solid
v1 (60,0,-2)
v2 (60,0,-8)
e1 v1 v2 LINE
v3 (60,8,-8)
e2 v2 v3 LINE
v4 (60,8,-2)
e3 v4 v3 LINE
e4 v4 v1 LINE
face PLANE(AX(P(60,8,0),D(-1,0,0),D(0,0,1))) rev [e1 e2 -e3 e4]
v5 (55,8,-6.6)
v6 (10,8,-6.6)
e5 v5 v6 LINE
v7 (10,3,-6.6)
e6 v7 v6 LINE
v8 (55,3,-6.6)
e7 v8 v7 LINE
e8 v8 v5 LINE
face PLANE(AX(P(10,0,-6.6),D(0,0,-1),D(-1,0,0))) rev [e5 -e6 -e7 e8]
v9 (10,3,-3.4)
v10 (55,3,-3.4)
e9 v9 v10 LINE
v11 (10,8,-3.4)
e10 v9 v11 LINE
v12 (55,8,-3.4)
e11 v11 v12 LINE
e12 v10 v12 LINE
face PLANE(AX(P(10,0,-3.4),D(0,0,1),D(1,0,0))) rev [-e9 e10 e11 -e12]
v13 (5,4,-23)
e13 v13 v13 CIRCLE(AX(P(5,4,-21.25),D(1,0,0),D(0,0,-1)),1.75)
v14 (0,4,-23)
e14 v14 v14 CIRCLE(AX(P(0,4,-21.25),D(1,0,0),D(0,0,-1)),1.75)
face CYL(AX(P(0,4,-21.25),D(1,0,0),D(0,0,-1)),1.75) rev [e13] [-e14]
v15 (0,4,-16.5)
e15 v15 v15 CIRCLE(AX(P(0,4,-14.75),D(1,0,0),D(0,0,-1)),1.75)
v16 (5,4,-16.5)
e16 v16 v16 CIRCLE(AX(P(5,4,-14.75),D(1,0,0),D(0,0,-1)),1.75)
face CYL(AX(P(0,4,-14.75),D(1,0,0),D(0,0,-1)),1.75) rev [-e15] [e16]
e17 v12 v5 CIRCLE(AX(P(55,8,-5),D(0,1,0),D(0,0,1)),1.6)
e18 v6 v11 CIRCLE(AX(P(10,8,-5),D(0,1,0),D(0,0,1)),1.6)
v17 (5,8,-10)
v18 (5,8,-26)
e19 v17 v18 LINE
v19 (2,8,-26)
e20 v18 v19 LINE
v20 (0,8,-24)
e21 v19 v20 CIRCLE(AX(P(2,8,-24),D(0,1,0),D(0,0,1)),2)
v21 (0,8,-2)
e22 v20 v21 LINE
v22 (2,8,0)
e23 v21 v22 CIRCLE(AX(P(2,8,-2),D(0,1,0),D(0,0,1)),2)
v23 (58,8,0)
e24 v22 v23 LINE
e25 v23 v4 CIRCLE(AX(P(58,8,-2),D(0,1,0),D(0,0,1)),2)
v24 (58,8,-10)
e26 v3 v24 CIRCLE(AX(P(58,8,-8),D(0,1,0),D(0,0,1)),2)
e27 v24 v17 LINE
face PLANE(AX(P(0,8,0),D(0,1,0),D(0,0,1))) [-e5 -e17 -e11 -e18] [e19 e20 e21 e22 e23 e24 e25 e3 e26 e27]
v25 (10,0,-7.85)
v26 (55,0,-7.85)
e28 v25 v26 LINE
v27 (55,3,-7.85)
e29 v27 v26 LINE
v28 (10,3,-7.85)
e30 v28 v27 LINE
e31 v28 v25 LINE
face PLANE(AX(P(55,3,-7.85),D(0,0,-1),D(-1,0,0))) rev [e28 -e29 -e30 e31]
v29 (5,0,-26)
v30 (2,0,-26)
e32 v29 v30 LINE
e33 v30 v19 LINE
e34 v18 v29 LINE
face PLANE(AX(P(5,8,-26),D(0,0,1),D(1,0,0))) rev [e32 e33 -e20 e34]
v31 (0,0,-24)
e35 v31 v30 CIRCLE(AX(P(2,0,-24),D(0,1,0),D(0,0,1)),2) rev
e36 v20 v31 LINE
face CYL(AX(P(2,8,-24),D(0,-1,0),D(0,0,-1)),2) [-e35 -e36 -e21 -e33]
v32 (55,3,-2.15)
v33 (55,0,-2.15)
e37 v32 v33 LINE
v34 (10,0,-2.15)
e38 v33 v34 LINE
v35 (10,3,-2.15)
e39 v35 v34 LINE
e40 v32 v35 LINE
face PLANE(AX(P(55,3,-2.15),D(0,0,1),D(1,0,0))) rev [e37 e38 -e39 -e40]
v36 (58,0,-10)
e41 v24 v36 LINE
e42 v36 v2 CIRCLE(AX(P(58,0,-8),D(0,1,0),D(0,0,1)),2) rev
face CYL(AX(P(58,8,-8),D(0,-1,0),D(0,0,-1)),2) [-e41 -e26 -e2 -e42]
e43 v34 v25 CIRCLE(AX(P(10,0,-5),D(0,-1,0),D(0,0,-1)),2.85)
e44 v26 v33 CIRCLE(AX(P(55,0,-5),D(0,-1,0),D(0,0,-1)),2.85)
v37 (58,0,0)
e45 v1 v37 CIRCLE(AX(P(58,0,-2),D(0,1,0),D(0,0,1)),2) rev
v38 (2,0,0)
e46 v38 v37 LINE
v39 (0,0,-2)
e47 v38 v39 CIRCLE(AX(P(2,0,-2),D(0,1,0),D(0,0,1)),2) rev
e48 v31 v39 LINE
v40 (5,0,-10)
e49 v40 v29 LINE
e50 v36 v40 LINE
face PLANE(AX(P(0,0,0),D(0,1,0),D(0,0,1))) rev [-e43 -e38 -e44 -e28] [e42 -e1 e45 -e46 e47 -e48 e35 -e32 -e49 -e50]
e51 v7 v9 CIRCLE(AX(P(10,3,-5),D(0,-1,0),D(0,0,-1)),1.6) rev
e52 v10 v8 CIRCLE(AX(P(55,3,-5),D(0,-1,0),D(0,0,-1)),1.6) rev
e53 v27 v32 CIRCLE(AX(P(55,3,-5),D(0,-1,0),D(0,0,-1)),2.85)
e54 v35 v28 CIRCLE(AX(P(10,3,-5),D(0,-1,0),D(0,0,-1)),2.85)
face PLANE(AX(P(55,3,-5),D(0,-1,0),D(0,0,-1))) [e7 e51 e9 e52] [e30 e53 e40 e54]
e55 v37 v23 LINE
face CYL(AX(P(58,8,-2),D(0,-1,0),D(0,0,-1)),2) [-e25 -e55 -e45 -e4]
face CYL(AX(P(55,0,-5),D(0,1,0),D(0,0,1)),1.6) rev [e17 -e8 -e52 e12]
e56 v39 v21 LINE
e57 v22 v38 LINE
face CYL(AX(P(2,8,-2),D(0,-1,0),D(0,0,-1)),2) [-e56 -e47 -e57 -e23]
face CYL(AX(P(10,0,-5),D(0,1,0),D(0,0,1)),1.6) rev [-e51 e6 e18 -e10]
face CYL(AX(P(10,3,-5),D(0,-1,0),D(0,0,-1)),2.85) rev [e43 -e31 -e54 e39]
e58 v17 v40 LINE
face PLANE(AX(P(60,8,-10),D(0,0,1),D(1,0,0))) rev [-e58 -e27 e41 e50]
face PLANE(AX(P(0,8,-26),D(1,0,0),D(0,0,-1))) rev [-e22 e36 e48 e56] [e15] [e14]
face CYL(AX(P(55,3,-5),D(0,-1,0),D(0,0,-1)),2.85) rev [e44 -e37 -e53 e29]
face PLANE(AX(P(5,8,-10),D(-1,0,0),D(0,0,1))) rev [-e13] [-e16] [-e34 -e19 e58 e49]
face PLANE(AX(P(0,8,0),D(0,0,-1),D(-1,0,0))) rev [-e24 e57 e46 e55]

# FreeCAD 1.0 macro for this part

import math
import FreeCAD as App
import Part
import Sketcher


def edges_at(feature, points):
    """Names of the edges that pass closest to the given points."""
    edges = feature.Shape.Edges
    near = lambda p: min(range(len(edges)), key=lambda i: edges[i].distToShape(Part.Vertex(*p))[0])
    return sorted({f"Edge{near(p) + 1}" for p in points})

doc = App.newDocument("Part")
params = doc.addObject("Spreadsheet::Sheet", "Params")
for row, (alias, value) in enumerate([
    ("sketch1_width", "60 mm"),
    ("sketch1_width2", "55 mm"),
    ("sketch1_height", "26 mm"),
    ("sketch1_height2", "10 mm"),
    ("pad1_length", "8 mm"),
    ("sketch2_diameter", "3.5 mm"),
    ("sketch3_radius", "1.6 mm"),
    ("sketch3_width", "45 mm"),
    ("sketch4_width", "45 mm"),
    ("sketch4_radius", "2.85 mm"),
    ("pocket3_length", "3 mm"),
    ("fillet_radius", "2 mm"),
], start=1):
    params.set(f"A{row}", alias)
    params.set(f"B{row}", "=" + value)
    params.setAlias(f"B{row}", alias)

body = doc.addObject("PartDesign::Body", "Body")

# Sketch on XZ plane
sketch1 = body.newObject("Sketcher::SketchObject", "Sketch")
sketch1.AttachmentSupport = (doc.getObject("XZ_Plane"), [""])
sketch1.MapMode = "FlatFace"
sketch1.addGeometry([
    Part.LineSegment(App.Vector(0, -26, 0), App.Vector(0, 0, 0)),  # 0
    Part.LineSegment(App.Vector(0, 0, 0), App.Vector(60, 0, 0)),  # 1
    Part.LineSegment(App.Vector(60, 0, 0), App.Vector(60, -10, 0)),  # 2
    Part.LineSegment(App.Vector(60, -10, 0), App.Vector(5, -10, 0)),  # 3
    Part.LineSegment(App.Vector(5, -10, 0), App.Vector(5, -26, 0)),  # 4
    Part.LineSegment(App.Vector(5, -26, 0), App.Vector(0, -26, 0)),  # 5
], False)
sketch1.addConstraint([
    Sketcher.Constraint("Coincident", 0, 2, 1, 1),
    Sketcher.Constraint("Coincident", 1, 2, 2, 1),
    Sketcher.Constraint("Coincident", 2, 2, 3, 1),
    Sketcher.Constraint("Coincident", 3, 2, 4, 1),
    Sketcher.Constraint("Coincident", 4, 2, 5, 1),
    Sketcher.Constraint("Coincident", 5, 2, 0, 1),
    Sketcher.Constraint("Vertical", 0),
    Sketcher.Constraint("Horizontal", 1),
    Sketcher.Constraint("Vertical", 2),
    Sketcher.Constraint("Horizontal", 3),
    Sketcher.Constraint("Vertical", 4),
    Sketcher.Constraint("Horizontal", 5),
    Sketcher.Constraint("Coincident", 0, 2, -1, 1),
    Sketcher.Constraint("DistanceX", 1, 1, 1, 2, 60.0),
    Sketcher.Constraint("DistanceX", 3, 2, 3, 1, 55.0),
    Sketcher.Constraint("DistanceY", 0, 1, 0, 2, 26.0),
    Sketcher.Constraint("DistanceY", 2, 2, 2, 1, 10.0),
])
sketch1.setExpression("Constraints[13]", "Params.sketch1_width")
sketch1.setExpression("Constraints[14]", "Params.sketch1_width2")
sketch1.setExpression("Constraints[15]", "Params.sketch1_height")
sketch1.setExpression("Constraints[16]", "Params.sketch1_height2")
pad1 = body.newObject("PartDesign::Pad", "Pad")
pad1.Profile = sketch1
pad1.setExpression("Length", "Params.pad1_length")
pad1.Reversed = True

# Sketch on YZ plane
sketch2 = body.newObject("Sketcher::SketchObject", "Sketch001")
sketch2.AttachmentSupport = (doc.getObject("YZ_Plane"), [""])
sketch2.MapMode = "FlatFace"
sketch2.AttachmentOffset = App.Placement(App.Vector(0, 0, 5), App.Rotation())
sketch2.addGeometry([
    Part.Circle(App.Vector(4, -21.25, 0), App.Vector(0, 0, 1), 1.75),
    Part.Circle(App.Vector(4, -14.75, 0), App.Vector(0, 0, 1), 1.75),
], False)
sketch2.addConstraint([
    Sketcher.Constraint("Equal", 0, 1),
    Sketcher.Constraint("Vertical", 0, 3, 1, 3),
    Sketcher.Constraint("Diameter", 0, 3.5),
    Sketcher.Constraint("DistanceX", -1, 1, 0, 3, 4.0),
    Sketcher.Constraint("DistanceY", 0, 3, 1, 3, 6.5),
    Sketcher.Constraint("DistanceY", 0, 3, -1, 1, 21.25),
])
sketch2.setExpression("Constraints[2]", "Params.sketch2_diameter")
pocket1 = body.newObject("PartDesign::Pocket", "Pocket")
pocket1.Profile = sketch2
pocket1.Type = "ThroughAll"

# Sketch on XZ plane
sketch3 = body.newObject("Sketcher::SketchObject", "Sketch002")
sketch3.AttachmentSupport = (doc.getObject("XZ_Plane"), [""])
sketch3.MapMode = "FlatFace"
sketch3.AttachmentOffset = App.Placement(App.Vector(0, 0, -8), App.Rotation())
sketch3.addGeometry([
    Part.LineSegment(App.Vector(55, -6.6, 0), App.Vector(10, -6.6, 0)),
    Part.ArcOfCircle(Part.Circle(App.Vector(10, -5, 0), App.Vector(0, 0, 1), 1.6), math.radians(90), math.radians(270)),
    Part.LineSegment(App.Vector(10, -3.4, 0), App.Vector(55, -3.4, 0)),
    Part.ArcOfCircle(Part.Circle(App.Vector(55, -5, 0), App.Vector(0, 0, 1), 1.6), math.radians(-90), math.radians(90)),
], False)
sketch3.addConstraint([
    Sketcher.Constraint("Tangent", 0, 2, 1, 2),
    Sketcher.Constraint("Tangent", 1, 1, 2, 1),
    Sketcher.Constraint("Tangent", 2, 2, 3, 2),
    Sketcher.Constraint("Tangent", 3, 1, 0, 1),
    Sketcher.Constraint("Horizontal", 0),
    Sketcher.Constraint("Horizontal", 2),
    Sketcher.Constraint("Radius", 1, 1.6),
    Sketcher.Constraint("DistanceX", 0, 2, 0, 1, 45.0),
    Sketcher.Constraint("DistanceX", -1, 1, 1, 3, 10.0),
    Sketcher.Constraint("DistanceY", 1, 3, -1, 1, 5.0),
])
sketch3.setExpression("Constraints[6]", "Params.sketch3_radius")
sketch3.setExpression("Constraints[7]", "Params.sketch3_width")
pocket2 = body.newObject("PartDesign::Pocket", "Pocket001")
pocket2.Profile = sketch3
pocket2.Type = "ThroughAll"
pocket2.Reversed = True

# Sketch on XZ plane
sketch4 = body.newObject("Sketcher::SketchObject", "Sketch003")
sketch4.AttachmentSupport = (doc.getObject("XZ_Plane"), [""])
sketch4.MapMode = "FlatFace"
sketch4.addGeometry([
    Part.LineSegment(App.Vector(10, -7.85, 0), App.Vector(55, -7.85, 0)),
    Part.ArcOfCircle(Part.Circle(App.Vector(55, -5, 0), App.Vector(0, 0, 1), 2.85), math.radians(-90), math.radians(90)),
    Part.LineSegment(App.Vector(55, -2.15, 0), App.Vector(10, -2.15, 0)),
    Part.ArcOfCircle(Part.Circle(App.Vector(10, -5, 0), App.Vector(0, 0, 1), 2.85), math.radians(90), math.radians(270)),
], False)
sketch4.addConstraint([
    Sketcher.Constraint("Tangent", 0, 2, 1, 1),
    Sketcher.Constraint("Tangent", 1, 2, 2, 1),
    Sketcher.Constraint("Tangent", 2, 2, 3, 1),
    Sketcher.Constraint("Tangent", 3, 2, 0, 1),
    Sketcher.Constraint("Horizontal", 0),
    Sketcher.Constraint("Horizontal", 2),
    Sketcher.Constraint("DistanceX", 0, 1, 0, 2, 45.0),
    Sketcher.Constraint("Radius", 1, 2.85),
    Sketcher.Constraint("DistanceX", -1, 1, 1, 3, 55.0),
    Sketcher.Constraint("DistanceY", 1, 3, -1, 1, 5.0),
])
sketch4.setExpression("Constraints[6]", "Params.sketch4_width")
sketch4.setExpression("Constraints[7]", "Params.sketch4_radius")
pocket3 = body.newObject("PartDesign::Pocket", "Pocket002")
pocket3.Profile = sketch4
pocket3.setExpression("Length", "Params.pocket3_length")
doc.recompute()

fillet = body.newObject("PartDesign::Fillet", "Fillet")
fillet.Base = (pocket3, edges_at(pocket3, [
    (60, 4, -10),
    (60, 4, 0),
    (0, 4, 0),
    (0, 4, -26),
]))
fillet.setExpression("Radius", "Params.fillet_radius")

doc.recompute()
